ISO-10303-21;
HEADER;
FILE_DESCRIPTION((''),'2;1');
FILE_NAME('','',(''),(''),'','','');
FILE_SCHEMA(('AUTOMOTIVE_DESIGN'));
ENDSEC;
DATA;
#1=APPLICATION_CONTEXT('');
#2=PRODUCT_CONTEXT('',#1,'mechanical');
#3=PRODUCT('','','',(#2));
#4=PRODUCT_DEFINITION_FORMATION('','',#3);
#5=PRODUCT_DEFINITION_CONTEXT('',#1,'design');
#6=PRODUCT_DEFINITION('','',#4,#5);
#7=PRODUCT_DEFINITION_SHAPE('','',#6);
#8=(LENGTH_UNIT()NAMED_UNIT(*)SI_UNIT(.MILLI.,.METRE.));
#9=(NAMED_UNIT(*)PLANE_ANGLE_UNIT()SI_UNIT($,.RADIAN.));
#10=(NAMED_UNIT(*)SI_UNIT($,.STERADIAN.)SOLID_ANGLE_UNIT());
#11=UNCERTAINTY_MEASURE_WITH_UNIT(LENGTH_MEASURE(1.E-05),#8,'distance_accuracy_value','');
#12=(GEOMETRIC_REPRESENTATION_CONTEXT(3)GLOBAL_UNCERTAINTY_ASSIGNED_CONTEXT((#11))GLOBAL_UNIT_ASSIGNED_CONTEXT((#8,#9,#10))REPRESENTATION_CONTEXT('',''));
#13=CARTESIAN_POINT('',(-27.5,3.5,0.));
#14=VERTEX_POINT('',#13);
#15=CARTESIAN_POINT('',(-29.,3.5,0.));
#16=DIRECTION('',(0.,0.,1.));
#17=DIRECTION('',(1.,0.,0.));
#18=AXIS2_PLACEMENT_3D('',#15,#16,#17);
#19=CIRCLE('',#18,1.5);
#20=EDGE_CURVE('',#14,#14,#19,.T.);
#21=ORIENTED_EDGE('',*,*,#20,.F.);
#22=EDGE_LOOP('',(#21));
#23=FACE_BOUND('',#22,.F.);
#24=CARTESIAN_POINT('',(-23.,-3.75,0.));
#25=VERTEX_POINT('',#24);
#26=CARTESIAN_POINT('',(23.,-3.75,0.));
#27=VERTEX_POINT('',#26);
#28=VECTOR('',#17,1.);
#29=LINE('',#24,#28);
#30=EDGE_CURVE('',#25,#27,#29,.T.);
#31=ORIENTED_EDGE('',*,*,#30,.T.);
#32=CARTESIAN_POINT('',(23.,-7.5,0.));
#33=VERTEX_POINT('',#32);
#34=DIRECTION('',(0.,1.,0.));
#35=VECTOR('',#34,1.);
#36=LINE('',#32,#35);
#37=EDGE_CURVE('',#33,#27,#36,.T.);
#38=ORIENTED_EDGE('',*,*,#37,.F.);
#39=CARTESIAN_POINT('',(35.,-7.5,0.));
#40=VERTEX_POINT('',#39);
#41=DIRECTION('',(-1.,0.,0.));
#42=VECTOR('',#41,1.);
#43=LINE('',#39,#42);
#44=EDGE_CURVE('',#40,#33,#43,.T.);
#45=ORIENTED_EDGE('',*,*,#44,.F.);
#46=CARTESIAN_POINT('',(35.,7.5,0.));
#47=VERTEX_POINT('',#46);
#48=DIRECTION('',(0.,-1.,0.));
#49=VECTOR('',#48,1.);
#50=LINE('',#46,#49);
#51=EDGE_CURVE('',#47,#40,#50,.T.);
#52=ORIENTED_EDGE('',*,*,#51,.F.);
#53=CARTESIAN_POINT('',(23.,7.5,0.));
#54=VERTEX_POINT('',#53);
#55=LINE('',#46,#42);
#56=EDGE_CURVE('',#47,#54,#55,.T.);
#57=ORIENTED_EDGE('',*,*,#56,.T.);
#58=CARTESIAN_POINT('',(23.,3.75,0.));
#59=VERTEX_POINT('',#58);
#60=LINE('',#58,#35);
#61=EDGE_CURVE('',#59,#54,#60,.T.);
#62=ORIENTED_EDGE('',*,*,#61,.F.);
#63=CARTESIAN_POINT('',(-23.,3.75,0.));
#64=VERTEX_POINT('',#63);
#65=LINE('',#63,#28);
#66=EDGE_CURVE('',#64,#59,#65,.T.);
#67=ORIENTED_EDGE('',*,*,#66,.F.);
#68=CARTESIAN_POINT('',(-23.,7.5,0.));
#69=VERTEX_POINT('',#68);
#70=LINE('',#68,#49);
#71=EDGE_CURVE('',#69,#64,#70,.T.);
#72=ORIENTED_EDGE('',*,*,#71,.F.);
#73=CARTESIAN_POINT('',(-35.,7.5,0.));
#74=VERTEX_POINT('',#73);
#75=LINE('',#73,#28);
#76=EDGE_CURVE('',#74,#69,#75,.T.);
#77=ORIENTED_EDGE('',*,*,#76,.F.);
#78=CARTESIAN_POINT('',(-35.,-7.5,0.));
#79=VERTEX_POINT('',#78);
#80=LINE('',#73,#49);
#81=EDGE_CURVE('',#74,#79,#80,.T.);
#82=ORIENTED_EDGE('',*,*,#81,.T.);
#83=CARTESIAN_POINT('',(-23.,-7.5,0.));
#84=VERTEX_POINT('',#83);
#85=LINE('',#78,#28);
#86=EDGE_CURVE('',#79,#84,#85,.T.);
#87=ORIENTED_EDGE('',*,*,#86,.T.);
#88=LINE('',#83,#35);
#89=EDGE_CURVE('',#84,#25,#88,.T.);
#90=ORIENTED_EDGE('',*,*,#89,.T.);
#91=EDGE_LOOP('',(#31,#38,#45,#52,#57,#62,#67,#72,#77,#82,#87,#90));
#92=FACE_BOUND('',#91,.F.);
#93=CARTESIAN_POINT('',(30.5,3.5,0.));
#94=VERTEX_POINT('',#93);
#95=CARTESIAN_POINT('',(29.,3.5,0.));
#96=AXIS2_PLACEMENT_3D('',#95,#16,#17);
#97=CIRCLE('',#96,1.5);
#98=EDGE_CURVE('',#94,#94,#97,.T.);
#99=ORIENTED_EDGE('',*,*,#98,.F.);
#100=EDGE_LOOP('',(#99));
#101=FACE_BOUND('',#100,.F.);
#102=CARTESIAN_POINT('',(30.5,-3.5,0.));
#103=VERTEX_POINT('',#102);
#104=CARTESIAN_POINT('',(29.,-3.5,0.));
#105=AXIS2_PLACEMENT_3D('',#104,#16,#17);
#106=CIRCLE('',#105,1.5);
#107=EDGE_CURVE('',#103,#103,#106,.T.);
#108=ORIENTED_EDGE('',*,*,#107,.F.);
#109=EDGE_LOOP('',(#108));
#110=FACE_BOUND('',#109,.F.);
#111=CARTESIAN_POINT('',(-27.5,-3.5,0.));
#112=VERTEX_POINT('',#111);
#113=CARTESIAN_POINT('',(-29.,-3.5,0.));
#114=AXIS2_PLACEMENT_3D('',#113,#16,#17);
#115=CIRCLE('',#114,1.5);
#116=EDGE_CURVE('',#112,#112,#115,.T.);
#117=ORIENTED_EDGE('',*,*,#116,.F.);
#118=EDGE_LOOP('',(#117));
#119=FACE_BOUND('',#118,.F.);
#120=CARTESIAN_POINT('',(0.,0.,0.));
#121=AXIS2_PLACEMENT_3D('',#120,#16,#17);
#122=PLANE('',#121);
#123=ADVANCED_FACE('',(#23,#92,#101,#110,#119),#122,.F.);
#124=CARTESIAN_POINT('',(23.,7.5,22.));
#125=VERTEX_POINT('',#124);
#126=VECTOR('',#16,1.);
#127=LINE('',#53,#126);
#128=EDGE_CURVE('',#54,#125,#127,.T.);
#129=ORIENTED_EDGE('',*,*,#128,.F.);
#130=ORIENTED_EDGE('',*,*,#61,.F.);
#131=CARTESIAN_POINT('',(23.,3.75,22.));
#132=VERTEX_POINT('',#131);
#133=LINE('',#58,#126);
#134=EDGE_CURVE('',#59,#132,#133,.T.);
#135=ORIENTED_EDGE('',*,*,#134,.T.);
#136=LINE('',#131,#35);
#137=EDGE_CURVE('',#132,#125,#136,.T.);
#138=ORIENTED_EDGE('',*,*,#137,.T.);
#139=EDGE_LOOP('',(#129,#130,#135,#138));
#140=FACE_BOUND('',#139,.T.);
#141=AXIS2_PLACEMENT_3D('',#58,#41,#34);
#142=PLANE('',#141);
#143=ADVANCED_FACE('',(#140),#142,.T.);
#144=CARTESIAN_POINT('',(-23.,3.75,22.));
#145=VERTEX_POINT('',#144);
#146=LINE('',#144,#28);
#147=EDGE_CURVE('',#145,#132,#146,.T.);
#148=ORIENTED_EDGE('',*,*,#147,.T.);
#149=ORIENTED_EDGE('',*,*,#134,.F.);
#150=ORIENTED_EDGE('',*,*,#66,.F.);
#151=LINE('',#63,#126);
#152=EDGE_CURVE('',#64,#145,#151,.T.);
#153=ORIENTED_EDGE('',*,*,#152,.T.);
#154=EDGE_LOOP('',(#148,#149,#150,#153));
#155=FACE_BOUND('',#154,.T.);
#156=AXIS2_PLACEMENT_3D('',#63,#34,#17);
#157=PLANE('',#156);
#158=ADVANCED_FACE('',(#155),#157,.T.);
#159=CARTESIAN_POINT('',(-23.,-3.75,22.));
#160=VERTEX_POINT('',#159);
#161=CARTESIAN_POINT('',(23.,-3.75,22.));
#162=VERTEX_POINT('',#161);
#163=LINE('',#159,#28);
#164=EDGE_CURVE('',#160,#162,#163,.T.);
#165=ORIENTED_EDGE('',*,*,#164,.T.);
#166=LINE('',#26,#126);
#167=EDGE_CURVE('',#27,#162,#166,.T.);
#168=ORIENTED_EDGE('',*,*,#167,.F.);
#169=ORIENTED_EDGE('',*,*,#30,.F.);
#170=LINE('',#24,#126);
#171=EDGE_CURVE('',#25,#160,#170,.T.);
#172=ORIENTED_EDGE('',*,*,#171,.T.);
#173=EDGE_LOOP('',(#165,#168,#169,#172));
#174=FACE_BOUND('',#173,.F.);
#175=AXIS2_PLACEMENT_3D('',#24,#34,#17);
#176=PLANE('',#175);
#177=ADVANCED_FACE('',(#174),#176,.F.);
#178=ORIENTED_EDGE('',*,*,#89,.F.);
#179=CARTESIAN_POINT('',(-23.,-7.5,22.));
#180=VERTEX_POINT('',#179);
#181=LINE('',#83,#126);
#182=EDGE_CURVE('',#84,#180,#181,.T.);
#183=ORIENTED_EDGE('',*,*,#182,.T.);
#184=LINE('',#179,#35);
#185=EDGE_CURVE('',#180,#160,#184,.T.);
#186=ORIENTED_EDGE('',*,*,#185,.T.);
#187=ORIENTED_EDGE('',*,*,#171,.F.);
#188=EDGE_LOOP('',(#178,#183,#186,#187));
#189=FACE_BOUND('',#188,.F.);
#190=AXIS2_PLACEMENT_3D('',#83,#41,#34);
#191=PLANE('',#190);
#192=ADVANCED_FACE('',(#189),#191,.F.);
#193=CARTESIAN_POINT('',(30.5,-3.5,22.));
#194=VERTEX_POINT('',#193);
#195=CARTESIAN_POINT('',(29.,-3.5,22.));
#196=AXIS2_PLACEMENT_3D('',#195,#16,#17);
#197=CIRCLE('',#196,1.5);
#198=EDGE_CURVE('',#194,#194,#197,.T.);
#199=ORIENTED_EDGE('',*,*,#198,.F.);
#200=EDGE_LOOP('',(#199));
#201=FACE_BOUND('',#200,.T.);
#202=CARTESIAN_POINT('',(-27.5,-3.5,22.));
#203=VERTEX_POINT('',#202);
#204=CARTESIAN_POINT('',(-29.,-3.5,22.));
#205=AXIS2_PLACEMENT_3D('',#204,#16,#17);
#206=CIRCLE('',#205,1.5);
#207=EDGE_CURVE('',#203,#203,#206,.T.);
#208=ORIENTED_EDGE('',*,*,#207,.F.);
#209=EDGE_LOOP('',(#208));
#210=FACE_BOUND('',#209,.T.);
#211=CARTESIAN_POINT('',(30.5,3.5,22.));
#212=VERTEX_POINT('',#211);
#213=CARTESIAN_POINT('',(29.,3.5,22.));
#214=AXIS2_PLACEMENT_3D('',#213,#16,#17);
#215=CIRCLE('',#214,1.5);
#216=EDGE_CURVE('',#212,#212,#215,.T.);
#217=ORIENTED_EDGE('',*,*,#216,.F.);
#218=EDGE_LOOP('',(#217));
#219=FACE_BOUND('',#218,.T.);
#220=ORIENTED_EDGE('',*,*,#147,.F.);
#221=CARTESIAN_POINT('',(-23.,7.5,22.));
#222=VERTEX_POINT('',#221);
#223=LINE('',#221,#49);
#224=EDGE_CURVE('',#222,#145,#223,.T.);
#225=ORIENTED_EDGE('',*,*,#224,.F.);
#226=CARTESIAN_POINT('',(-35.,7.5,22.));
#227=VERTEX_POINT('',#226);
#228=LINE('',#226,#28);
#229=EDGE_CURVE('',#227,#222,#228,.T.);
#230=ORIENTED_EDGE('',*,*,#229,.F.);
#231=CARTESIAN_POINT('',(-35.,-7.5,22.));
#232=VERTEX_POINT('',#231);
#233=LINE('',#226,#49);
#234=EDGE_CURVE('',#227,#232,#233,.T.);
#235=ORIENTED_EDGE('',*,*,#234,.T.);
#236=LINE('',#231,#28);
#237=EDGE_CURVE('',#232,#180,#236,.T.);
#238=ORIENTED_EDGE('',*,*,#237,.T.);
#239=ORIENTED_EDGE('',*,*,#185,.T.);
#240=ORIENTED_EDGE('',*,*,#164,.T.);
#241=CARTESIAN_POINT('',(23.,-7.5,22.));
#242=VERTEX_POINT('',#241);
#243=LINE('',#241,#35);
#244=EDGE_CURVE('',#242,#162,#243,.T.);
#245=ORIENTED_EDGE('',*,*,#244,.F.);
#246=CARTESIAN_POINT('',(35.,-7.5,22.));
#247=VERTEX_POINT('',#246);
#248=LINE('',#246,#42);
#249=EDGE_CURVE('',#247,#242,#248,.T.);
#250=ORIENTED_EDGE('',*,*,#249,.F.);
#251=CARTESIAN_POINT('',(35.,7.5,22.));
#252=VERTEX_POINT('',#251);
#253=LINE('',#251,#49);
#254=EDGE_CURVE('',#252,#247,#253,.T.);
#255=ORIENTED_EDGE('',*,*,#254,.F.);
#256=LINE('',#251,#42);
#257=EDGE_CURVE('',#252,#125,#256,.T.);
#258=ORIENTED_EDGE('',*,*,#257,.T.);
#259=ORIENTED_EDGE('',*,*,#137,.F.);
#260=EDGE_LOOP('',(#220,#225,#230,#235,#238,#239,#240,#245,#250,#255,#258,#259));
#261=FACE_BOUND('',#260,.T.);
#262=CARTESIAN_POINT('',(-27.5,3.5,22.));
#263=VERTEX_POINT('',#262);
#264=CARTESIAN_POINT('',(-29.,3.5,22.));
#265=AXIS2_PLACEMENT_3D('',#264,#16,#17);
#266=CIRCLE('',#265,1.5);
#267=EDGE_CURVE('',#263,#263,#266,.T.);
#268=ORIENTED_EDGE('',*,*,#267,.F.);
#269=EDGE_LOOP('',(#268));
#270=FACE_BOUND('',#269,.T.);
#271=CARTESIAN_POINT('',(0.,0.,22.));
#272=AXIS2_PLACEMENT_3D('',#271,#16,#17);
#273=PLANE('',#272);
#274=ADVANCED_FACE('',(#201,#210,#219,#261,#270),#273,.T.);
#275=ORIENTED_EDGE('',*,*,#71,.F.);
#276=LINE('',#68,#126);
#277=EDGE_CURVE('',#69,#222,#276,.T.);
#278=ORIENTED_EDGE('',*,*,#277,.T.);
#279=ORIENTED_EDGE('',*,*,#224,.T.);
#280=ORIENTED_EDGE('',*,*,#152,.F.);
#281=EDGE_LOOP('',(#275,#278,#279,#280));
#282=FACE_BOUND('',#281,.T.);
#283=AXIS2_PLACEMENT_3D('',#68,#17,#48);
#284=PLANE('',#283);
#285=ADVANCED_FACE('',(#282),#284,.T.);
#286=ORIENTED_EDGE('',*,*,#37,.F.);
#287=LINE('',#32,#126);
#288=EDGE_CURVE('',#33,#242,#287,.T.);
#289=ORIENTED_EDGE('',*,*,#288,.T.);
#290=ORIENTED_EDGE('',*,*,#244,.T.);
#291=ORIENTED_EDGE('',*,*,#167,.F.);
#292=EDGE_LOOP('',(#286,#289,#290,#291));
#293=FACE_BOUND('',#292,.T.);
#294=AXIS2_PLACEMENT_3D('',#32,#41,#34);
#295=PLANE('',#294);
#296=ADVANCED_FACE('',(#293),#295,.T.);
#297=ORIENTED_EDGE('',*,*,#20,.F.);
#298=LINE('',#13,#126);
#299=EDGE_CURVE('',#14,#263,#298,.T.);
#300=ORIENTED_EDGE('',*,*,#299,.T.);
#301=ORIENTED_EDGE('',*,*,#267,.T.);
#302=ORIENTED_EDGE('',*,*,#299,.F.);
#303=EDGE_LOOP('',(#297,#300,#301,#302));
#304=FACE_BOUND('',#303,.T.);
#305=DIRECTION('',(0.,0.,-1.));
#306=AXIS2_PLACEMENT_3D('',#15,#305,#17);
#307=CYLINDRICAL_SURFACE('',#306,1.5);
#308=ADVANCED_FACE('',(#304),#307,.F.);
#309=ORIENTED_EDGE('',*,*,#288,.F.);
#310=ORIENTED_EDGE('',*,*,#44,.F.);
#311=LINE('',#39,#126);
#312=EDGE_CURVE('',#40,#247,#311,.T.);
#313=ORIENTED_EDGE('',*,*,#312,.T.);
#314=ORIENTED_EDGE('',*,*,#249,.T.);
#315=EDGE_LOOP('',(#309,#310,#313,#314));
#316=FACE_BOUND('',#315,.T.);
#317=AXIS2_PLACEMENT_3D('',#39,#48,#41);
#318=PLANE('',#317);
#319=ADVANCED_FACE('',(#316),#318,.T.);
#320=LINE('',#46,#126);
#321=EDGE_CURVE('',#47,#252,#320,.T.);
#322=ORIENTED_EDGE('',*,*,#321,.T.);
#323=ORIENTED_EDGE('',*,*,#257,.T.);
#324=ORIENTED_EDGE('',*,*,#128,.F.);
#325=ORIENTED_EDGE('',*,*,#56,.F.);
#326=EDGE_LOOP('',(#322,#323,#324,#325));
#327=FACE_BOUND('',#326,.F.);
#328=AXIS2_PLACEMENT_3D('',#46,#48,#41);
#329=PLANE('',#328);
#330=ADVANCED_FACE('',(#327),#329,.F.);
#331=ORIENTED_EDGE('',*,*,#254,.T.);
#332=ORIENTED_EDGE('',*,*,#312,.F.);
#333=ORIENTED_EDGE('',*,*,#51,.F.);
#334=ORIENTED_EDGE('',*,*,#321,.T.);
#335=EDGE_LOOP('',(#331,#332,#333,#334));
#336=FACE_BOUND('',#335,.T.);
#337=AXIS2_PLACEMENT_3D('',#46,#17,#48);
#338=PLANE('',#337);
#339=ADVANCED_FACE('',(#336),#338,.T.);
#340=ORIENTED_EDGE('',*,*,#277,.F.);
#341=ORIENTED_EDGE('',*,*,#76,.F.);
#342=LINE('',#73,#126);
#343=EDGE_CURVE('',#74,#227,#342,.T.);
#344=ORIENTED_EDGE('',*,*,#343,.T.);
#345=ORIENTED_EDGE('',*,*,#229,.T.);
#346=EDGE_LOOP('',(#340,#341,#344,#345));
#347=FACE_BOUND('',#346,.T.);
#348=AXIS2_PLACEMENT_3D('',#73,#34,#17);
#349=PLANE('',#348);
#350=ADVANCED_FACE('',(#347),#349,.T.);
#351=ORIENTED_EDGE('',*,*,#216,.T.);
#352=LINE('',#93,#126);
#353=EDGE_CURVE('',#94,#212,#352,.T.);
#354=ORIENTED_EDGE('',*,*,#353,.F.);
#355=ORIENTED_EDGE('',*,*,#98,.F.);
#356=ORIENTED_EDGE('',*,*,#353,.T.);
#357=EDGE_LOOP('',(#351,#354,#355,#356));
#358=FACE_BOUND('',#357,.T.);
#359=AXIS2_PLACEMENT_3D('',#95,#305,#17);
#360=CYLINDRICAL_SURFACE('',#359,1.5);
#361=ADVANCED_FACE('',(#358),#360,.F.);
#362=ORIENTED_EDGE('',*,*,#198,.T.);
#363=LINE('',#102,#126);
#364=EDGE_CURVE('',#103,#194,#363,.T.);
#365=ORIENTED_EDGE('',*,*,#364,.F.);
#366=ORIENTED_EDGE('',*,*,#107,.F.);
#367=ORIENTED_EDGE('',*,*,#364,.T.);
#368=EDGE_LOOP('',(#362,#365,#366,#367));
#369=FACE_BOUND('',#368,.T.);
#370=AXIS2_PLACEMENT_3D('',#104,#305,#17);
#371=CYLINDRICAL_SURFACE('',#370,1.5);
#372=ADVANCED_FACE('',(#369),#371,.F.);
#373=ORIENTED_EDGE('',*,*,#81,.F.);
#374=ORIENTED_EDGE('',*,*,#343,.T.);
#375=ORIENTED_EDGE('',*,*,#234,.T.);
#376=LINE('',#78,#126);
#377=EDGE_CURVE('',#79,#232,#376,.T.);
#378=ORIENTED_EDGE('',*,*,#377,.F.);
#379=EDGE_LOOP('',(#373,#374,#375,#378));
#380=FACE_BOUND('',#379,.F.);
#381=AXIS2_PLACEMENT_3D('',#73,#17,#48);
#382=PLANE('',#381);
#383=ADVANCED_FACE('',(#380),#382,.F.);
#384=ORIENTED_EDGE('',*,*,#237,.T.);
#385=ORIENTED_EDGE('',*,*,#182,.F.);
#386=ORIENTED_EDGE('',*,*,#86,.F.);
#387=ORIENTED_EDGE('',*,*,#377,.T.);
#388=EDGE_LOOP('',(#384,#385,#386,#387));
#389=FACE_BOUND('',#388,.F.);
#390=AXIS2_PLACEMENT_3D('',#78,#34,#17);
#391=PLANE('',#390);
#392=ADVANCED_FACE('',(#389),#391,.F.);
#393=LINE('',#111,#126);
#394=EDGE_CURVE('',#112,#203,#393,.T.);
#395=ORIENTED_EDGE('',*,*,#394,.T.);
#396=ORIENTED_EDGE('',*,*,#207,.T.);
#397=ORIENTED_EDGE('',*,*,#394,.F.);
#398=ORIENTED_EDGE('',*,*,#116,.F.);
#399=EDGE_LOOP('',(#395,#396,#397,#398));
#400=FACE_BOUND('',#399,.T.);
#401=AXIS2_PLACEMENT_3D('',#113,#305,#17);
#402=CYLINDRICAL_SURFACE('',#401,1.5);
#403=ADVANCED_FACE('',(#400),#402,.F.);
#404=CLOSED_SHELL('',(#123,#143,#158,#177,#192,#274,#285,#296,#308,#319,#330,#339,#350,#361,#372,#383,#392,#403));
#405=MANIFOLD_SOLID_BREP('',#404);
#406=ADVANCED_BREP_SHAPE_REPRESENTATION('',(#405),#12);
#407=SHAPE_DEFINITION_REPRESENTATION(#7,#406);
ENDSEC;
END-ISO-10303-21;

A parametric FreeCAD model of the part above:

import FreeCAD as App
import Part
import Sketcher
from FreeCAD import Vector
Q = App.Units.Quantity

doc = App.newDocument("Part")
body = doc.addObject("PartDesign::Body", "Body")

sketch1 = body.newObject("Sketcher::SketchObject", "Sketch")
sketch1.AttachmentSupport = (doc.getObject("XY_Plane"), [""])
sketch1.MapMode = "FlatFace"
sketch1.addGeometry([
    Part.LineSegment(Vector(-23, 7.5, 0), Vector(-35, 7.5, 0)),
    Part.LineSegment(Vector(-35, 7.5, 0), Vector(-35, -7.5, 0)),
    Part.LineSegment(Vector(-35, -7.5, 0), Vector(-23, -7.5, 0)),
    Part.LineSegment(Vector(-23, -7.5, 0), Vector(-23, -3.75, 0)),
    Part.LineSegment(Vector(-23, -3.75, 0), Vector(23, -3.75, 0)),
    Part.LineSegment(Vector(23, -3.75, 0), Vector(23, -7.5, 0)),
    Part.LineSegment(Vector(23, -7.5, 0), Vector(35, -7.5, 0)),
    Part.LineSegment(Vector(35, -7.5, 0), Vector(35, 7.5, 0)),
    Part.LineSegment(Vector(35, 7.5, 0), Vector(23, 7.5, 0)),
    Part.LineSegment(Vector(23, 7.5, 0), Vector(23, 3.75, 0)),
    Part.LineSegment(Vector(23, 3.75, 0), Vector(-23, 3.75, 0)),
    Part.LineSegment(Vector(-23, 3.75, 0), Vector(-23, 7.5, 0)),
    Part.Circle(Vector(-29, -3.5, 0), Vector(0, 0, 1), 1.5),
    Part.Circle(Vector(29, -3.5, 0), Vector(0, 0, 1), 1.5),
    Part.Circle(Vector(-29, 3.5, 0), Vector(0, 0, 1), 1.5),
    Part.Circle(Vector(29, 3.5, 0), Vector(0, 0, 1), 1.5),
], False)
sketch1.addConstraint([
    Sketcher.Constraint("Coincident", 0, 2, 1, 1),
    Sketcher.Constraint("Coincident", 1, 2, 2, 1),
    Sketcher.Constraint("Coincident", 2, 2, 3, 1),
    Sketcher.Constraint("Coincident", 3, 2, 4, 1),
    Sketcher.Constraint("Coincident", 4, 2, 5, 1),
    Sketcher.Constraint("Coincident", 5, 2, 6, 1),
    Sketcher.Constraint("Coincident", 6, 2, 7, 1),
    Sketcher.Constraint("Coincident", 7, 2, 8, 1),
    Sketcher.Constraint("Coincident", 8, 2, 9, 1),
    Sketcher.Constraint("Coincident", 9, 2, 10, 1),
    Sketcher.Constraint("Coincident", 10, 2, 11, 1),
    Sketcher.Constraint("Coincident", 11, 2, 0, 1),
    Sketcher.Constraint("Horizontal", 0),
    Sketcher.Constraint("Vertical", 1),
    Sketcher.Constraint("Horizontal", 2),
    Sketcher.Constraint("Vertical", 3),
    Sketcher.Constraint("Horizontal", 4),
    Sketcher.Constraint("Vertical", 5),
    Sketcher.Constraint("Horizontal", 6),
    Sketcher.Constraint("Vertical", 7),
    Sketcher.Constraint("Horizontal", 8),
    Sketcher.Constraint("Vertical", 9),
    Sketcher.Constraint("Horizontal", 10),
    Sketcher.Constraint("Vertical", 11),
    Sketcher.Constraint("Equal", 12, 13),
    Sketcher.Constraint("Equal", 13, 14),
    Sketcher.Constraint("Equal", 14, 15),
    Sketcher.Constraint("Symmetric", 13, 3, 14, 3, -1, 1),
    Sketcher.Constraint("Symmetric", 12, 3, 15, 3, -1, 1),
    Sketcher.Constraint("Symmetric", 0, 2, 6, 2, -1, 1),
    Sketcher.Constraint("Symmetric", 2, 2, 8, 2, -1, 1),
    Sketcher.Constraint("Symmetric", 4, 2, 10, 2, -1, 1),
    Sketcher.Constraint("Symmetric", 12, 3, 13, 3, -2),
    Sketcher.Constraint("Symmetric", 2, 2, 5, 2, -2),
    Sketcher.Constraint("Diameter", 12, Q("3 mm")),
    Sketcher.Constraint("DistanceX", 0, 2, 0, 1, Q("12 mm")),
    Sketcher.Constraint("DistanceY", 1, 2, 1, 1, Q("15 mm")),
    Sketcher.Constraint("DistanceY", 12, 3, 14, 3, Q("7 mm")),
    Sketcher.Constraint("DistanceX", 0, 2, 14, 3, Q("6 mm")),
    Sketcher.Constraint("DistanceY", 4, 2, 9, 2, Q("7.5 mm")),
    Sketcher.Constraint("DistanceX", 4, 1, 4, 2, Q("46 mm")),
])
pad1 = body.newObject("PartDesign::Pad", "Pad")
pad1.Profile = sketch1
pad1.Length = 22

doc.recompute()
